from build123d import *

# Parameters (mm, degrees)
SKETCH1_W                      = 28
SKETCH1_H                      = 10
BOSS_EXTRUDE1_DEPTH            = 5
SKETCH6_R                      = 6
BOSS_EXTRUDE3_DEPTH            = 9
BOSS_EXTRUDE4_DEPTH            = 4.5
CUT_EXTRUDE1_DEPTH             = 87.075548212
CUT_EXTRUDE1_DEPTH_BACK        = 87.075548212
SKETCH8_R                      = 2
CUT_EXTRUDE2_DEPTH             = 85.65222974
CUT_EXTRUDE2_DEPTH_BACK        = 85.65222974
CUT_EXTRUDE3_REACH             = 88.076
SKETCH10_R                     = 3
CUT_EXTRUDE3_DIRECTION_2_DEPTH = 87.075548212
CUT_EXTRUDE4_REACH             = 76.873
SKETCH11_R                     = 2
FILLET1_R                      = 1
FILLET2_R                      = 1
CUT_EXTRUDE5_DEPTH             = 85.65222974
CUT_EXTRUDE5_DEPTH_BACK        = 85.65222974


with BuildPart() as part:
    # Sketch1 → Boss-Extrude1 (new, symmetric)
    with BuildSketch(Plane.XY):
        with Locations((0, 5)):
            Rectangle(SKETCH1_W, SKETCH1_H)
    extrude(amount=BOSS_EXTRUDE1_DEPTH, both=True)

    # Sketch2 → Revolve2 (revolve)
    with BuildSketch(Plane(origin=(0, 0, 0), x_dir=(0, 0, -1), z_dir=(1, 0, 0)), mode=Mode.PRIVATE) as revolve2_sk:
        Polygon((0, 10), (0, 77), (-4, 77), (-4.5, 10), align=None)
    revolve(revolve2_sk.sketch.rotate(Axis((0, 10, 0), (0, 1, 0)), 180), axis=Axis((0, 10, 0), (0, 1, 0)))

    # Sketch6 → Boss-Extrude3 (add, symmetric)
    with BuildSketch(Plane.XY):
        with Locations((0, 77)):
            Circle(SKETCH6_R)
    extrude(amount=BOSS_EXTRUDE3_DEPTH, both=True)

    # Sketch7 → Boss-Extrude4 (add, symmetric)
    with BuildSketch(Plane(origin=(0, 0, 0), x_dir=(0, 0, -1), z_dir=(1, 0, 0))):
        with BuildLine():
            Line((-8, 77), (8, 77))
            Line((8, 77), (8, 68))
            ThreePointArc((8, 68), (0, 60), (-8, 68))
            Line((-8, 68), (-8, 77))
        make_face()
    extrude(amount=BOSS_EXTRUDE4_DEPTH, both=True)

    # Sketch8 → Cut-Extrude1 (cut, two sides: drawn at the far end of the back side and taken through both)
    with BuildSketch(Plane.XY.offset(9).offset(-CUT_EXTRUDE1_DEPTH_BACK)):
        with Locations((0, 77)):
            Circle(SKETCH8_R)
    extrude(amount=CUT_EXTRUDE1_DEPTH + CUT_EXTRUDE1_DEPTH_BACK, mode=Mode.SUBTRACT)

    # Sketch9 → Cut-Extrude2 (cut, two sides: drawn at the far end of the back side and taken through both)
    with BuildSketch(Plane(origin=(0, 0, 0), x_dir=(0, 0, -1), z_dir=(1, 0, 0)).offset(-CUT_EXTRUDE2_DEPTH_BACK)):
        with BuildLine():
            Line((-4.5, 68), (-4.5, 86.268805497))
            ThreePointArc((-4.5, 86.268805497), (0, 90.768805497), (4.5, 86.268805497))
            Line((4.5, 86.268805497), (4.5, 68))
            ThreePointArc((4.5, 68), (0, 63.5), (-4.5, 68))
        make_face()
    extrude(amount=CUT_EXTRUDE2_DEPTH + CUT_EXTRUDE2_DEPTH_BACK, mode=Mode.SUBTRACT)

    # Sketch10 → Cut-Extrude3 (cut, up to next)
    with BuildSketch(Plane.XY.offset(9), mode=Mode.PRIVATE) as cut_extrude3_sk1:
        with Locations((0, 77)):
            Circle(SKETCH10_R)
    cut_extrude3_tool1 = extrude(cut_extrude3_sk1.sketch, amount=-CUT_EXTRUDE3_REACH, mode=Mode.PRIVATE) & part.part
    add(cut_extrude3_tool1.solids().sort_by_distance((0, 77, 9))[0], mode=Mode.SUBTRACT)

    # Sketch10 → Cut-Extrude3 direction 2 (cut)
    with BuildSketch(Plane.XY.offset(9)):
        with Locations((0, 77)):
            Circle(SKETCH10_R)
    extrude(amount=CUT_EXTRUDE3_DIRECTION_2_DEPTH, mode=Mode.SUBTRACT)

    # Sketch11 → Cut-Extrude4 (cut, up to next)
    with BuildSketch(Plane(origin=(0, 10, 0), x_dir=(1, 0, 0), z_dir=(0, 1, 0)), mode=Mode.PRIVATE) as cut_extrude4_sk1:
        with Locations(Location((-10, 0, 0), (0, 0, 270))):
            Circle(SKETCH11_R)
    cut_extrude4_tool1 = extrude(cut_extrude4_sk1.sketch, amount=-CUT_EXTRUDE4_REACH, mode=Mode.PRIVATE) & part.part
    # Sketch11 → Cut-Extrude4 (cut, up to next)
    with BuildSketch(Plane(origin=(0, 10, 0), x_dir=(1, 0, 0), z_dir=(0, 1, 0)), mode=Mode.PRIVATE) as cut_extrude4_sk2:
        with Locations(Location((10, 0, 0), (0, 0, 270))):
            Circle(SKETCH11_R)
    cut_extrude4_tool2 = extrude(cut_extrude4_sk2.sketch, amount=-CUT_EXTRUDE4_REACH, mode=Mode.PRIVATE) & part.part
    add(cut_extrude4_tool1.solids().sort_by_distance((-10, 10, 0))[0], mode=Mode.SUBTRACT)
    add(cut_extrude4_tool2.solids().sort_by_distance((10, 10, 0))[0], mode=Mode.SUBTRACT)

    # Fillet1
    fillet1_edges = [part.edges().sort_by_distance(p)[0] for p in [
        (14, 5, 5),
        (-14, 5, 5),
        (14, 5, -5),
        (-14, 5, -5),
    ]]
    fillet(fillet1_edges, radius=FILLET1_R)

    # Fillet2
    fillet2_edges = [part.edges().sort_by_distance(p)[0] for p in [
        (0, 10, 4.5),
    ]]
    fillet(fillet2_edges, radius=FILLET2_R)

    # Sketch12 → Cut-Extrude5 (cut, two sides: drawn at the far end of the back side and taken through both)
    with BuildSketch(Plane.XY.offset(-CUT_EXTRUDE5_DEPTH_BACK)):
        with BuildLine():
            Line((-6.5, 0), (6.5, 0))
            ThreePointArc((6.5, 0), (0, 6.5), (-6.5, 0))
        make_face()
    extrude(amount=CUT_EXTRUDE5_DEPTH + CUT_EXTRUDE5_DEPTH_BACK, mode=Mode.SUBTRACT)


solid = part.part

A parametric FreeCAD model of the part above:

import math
import FreeCAD as App
import Part
import Sketcher
Q = App.Units.Quantity


def edges_at(feature, points):
    """Names of the edges that pass closest to the given points."""
    edges = feature.Shape.Edges
    near = lambda p: min(range(len(edges)), key=lambda i: edges[i].distToShape(Part.Vertex(*p))[0])
    return sorted({f"Edge{near(p) + 1}" for p in points})


def add_polygon(sketch, points):
    """Adds a closed chain of lines whose ends are joined by coincident constraints."""
    first, n = sketch.GeometryCount, len(points)
    for a, b in zip(points, points[1:] + points[:1]):
        sketch.addGeometry(Part.LineSegment(App.Vector(*a, 0), App.Vector(*b, 0)), False)
    for i in range(n):
        sketch.addConstraint(Sketcher.Constraint("Coincident", first + i, 2, first + (i + 1) % n, 1))

doc = App.newDocument("Part")
body = doc.addObject("PartDesign::Body", "Body")

sketch1 = body.newObject("Sketcher::SketchObject", "Sketch")
sketch1.AttachmentSupport = (doc.getObject("XY_Plane"), [""])
sketch1.MapMode = "FlatFace"
add_polygon(sketch1, [(-14, 10), (-14, 0), (14, 0), (14, 10)])
sketch1.addConstraint(Sketcher.Constraint("Vertical", 0))
sketch1.addConstraint(Sketcher.Constraint("Horizontal", 1))
sketch1.addConstraint(Sketcher.Constraint("Vertical", 2))
sketch1.addConstraint(Sketcher.Constraint("Horizontal", 3))
sketch1.addConstraint(Sketcher.Constraint("Symmetric", 0, 2, 1, 2, -1, 1))
sketch1.addConstraint(Sketcher.Constraint("DistanceX", 1, 1, 1, 2, Q("28 mm")))
sketch1.addConstraint(Sketcher.Constraint("DistanceY", 0, 2, 0, 1, Q("10 mm")))
pad1 = body.newObject("PartDesign::Pad", "Pad")
pad1.Profile = sketch1
pad1.Length = 10
pad1.Midplane = True

sketch2 = body.newObject("Sketcher::SketchObject", "Sketch001")
sketch2.AttachmentSupport = (doc.getObject("YZ_Plane"), [""])
sketch2.MapMode = "FlatFace"
add_polygon(sketch2, [(10, 0), (77, 0), (77, 4), (10, 4.5)])
sketch2.addConstraint(Sketcher.Constraint("Horizontal", 0))
sketch2.addConstraint(Sketcher.Constraint("Vertical", 1))
sketch2.addConstraint(Sketcher.Constraint("Vertical", 3))
sketch2.addConstraint(Sketcher.Constraint("PointOnObject", 0, 2, -1))
sketch2.addConstraint(Sketcher.Constraint("DistanceX", 0, 1, 0, 2, Q("67 mm")))
sketch2.addConstraint(Sketcher.Constraint("DistanceY", 1, 1, 1, 2, Q("4 mm")))
sketch2.addConstraint(Sketcher.Constraint("DistanceY", 3, 2, 3, 1, Q("4.5 mm")))
sketch2.addConstraint(Sketcher.Constraint("DistanceX", -1, 1, 0, 2, Q("77 mm")))
revolution = body.newObject("PartDesign::Revolution", "Revolution")
revolution.Profile = sketch2
revolution.ReferenceAxis = (sketch2, ["H_Axis"])
revolution.Angle = 360

sketch3 = body.newObject("Sketcher::SketchObject", "Sketch002")
sketch3.AttachmentSupport = (doc.getObject("XY_Plane"), [""])
sketch3.MapMode = "FlatFace"
sketch3.addGeometry(Part.Circle(App.Vector(0, 77, 0), App.Vector(0, 0, 1), 6), False)
sketch3.addConstraint(Sketcher.Constraint("PointOnObject", 0, 3, -2))
sketch3.addConstraint(Sketcher.Constraint("Diameter", 0, Q("12 mm")))
sketch3.addConstraint(Sketcher.Constraint("DistanceY", -1, 1, 0, 3, Q("77 mm")))
pad2 = body.newObject("PartDesign::Pad", "Pad001")
pad2.Profile = sketch3
pad2.Length = 18
pad2.Midplane = True

sketch4 = body.newObject("Sketcher::SketchObject", "Sketch003")
sketch4.AttachmentSupport = (doc.getObject("YZ_Plane"), [""])
sketch4.MapMode = "FlatFace"
sketch4.addGeometry(Part.LineSegment(App.Vector(77, -8, 0), App.Vector(77, 8, 0)), False)
sketch4.addGeometry(Part.LineSegment(App.Vector(77, 8, 0), App.Vector(68, 8, 0)), False)
sketch4.addGeometry(Part.ArcOfCircle(Part.Circle(App.Vector(68, 0, 0), App.Vector(0, 0, 1), 8), math.radians(90), math.radians(270)), False)
sketch4.addGeometry(Part.LineSegment(App.Vector(68, -8, 0), App.Vector(77, -8, 0)), False)
sketch4.addConstraint(Sketcher.Constraint("Coincident", 0, 2, 1, 1))
sketch4.addConstraint(Sketcher.Constraint("Tangent", 1, 2, 2, 1))
sketch4.addConstraint(Sketcher.Constraint("Tangent", 2, 2, 3, 1))
sketch4.addConstraint(Sketcher.Constraint("Coincident", 3, 2, 0, 1))
sketch4.addConstraint(Sketcher.Constraint("Vertical", 0))
sketch4.addConstraint(Sketcher.Constraint("Horizontal", 1))
sketch4.addConstraint(Sketcher.Constraint("Horizontal", 3))
sketch4.addConstraint(Sketcher.Constraint("PointOnObject", 2, 3, -1))
sketch4.addConstraint(Sketcher.Constraint("Radius", 2, Q("8 mm")))
sketch4.addConstraint(Sketcher.Constraint("DistanceX", 1, 2, 1, 1, Q("9 mm")))
sketch4.addConstraint(Sketcher.Constraint("DistanceX", -1, 1, 2, 3, Q("68 mm")))
pad3 = body.newObject("PartDesign::Pad", "Pad002")
pad3.Profile = sketch4
pad3.Length = 9
pad3.Midplane = True

sketch5 = body.newObject("Sketcher::SketchObject", "Sketch004")
sketch5.AttachmentSupport = (doc.getObject("XY_Plane"), [""])
sketch5.MapMode = "FlatFace"
sketch5.AttachmentOffset = App.Placement(App.Vector(0, 0, 9), App.Rotation())
sketch5.addGeometry(Part.Circle(App.Vector(0, 77, 0), App.Vector(0, 0, 1), 2), False)
sketch5.addConstraint(Sketcher.Constraint("PointOnObject", 0, 3, -2))
sketch5.addConstraint(Sketcher.Constraint("Diameter", 0, Q("4 mm")))
sketch5.addConstraint(Sketcher.Constraint("DistanceY", -1, 1, 0, 3, Q("77 mm")))
pocket1 = body.newObject("PartDesign::Pocket", "Pocket")
pocket1.Profile = sketch5
pocket1.Type = "ThroughAll"
pocket1.Midplane = True

sketch6 = body.newObject("Sketcher::SketchObject", "Sketch005")
sketch6.AttachmentSupport = (doc.getObject("YZ_Plane"), [""])
sketch6.MapMode = "FlatFace"
sketch6.addGeometry(Part.LineSegment(App.Vector(86.3, 4.5, 0), App.Vector(68, 4.5, 0)), False)
sketch6.addGeometry(Part.ArcOfCircle(Part.Circle(App.Vector(68, 0, 0), App.Vector(0, 0, 1), 4.5), math.radians(90), math.radians(270)), False)
sketch6.addGeometry(Part.LineSegment(App.Vector(68, -4.5, 0), App.Vector(86.3, -4.5, 0)), False)
sketch6.addGeometry(Part.ArcOfCircle(Part.Circle(App.Vector(86.3, 0, 0), App.Vector(0, 0, 1), 4.5), math.radians(-90), math.radians(90)), False)
sketch6.addConstraint(Sketcher.Constraint("Tangent", 0, 2, 1, 1))
sketch6.addConstraint(Sketcher.Constraint("Tangent", 1, 2, 2, 1))
sketch6.addConstraint(Sketcher.Constraint("Tangent", 2, 2, 3, 1))
sketch6.addConstraint(Sketcher.Constraint("Tangent", 3, 2, 0, 1))
sketch6.addConstraint(Sketcher.Constraint("Horizontal", 0))
sketch6.addConstraint(Sketcher.Constraint("Horizontal", 2))
sketch6.addConstraint(Sketcher.Constraint("PointOnObject", 1, 3, -1))
sketch6.addConstraint(Sketcher.Constraint("Radius", 1, Q("4.5 mm")))
sketch6.addConstraint(Sketcher.Constraint("DistanceX", -1, 1, 1, 3, Q("68 mm")))
sketch6.addConstraint(Sketcher.Constraint("DistanceX", 0, 2, 0, 1, Q("18.268805 mm")))
pocket2 = body.newObject("PartDesign::Pocket", "Pocket001")
pocket2.Profile = sketch6
pocket2.Type = "ThroughAll"
pocket2.Midplane = True

sketch7 = body.newObject("Sketcher::SketchObject", "Sketch006")
sketch7.AttachmentSupport = (doc.getObject("XY_Plane"), [""])
sketch7.MapMode = "FlatFace"
sketch7.AttachmentOffset = App.Placement(App.Vector(0, 0, 9), App.Rotation())
sketch7.addGeometry(Part.Circle(App.Vector(0, 77, 0), App.Vector(0, 0, 1), 3), False)
sketch7.addConstraint(Sketcher.Constraint("PointOnObject", 0, 3, -2))
sketch7.addConstraint(Sketcher.Constraint("Diameter", 0, Q("6 mm")))
sketch7.addConstraint(Sketcher.Constraint("DistanceY", -1, 1, 0, 3, Q("77 mm")))
pocket3 = body.newObject("PartDesign::Pocket", "Pocket002")
pocket3.Profile = sketch7
pocket3.Length = 4.5

sketch8 = body.newObject("Sketcher::SketchObject", "Sketch007")
sketch8.AttachmentSupport = (doc.getObject("XY_Plane"), [""])
sketch8.MapMode = "FlatFace"
sketch8.AttachmentOffset = App.Placement(App.Vector(0, 0, 9), App.Rotation())
sketch8.addGeometry(Part.Circle(App.Vector(0, 77, 0), App.Vector(0, 0, 1), 3), False)
sketch8.addConstraint(Sketcher.Constraint("PointOnObject", 0, 3, -2))
sketch8.addConstraint(Sketcher.Constraint("Diameter", 0, Q("6 mm")))
sketch8.addConstraint(Sketcher.Constraint("DistanceY", -1, 1, 0, 3, Q("77 mm")))
pocket4 = body.newObject("PartDesign::Pocket", "Pocket003")
pocket4.Profile = sketch8
pocket4.Length = 87.075548
pocket4.Reversed = True

sketch9 = body.newObject("Sketcher::SketchObject", "Sketch008")
sketch9.AttachmentSupport = (doc.getObject("XZ_Plane"), [""])
sketch9.MapMode = "FlatFace"
sketch9.AttachmentOffset = App.Placement(App.Vector(0, 0, -10), App.Rotation())
sketch9.addGeometry(Part.Circle(App.Vector(-10, 0, 0), App.Vector(0, 0, 1), 2), False)
sketch9.addConstraint(Sketcher.Constraint("PointOnObject", 0, 3, -1))
sketch9.addConstraint(Sketcher.Constraint("Diameter", 0, Q("4 mm")))
sketch9.addConstraint(Sketcher.Constraint("DistanceX", 0, 3, -1, 1, Q("10 mm")))
pocket5 = body.newObject("PartDesign::Pocket", "Pocket004")
pocket5.Profile = sketch9
pocket5.Type = "UpToFirst"
pocket5.Reversed = True

sketch10 = body.newObject("Sketcher::SketchObject", "Sketch009")
sketch10.AttachmentSupport = (doc.getObject("XZ_Plane"), [""])
sketch10.MapMode = "FlatFace"
sketch10.AttachmentOffset = App.Placement(App.Vector(0, 0, -10), App.Rotation())
sketch10.addGeometry(Part.Circle(App.Vector(10, 0, 0), App.Vector(0, 0, 1), 2), False)
sketch10.addConstraint(Sketcher.Constraint("PointOnObject", 0, 3, -1))
sketch10.addConstraint(Sketcher.Constraint("Diameter", 0, Q("4 mm")))
sketch10.addConstraint(Sketcher.Constraint("DistanceX", -1, 1, 0, 3, Q("10 mm")))
pocket6 = body.newObject("PartDesign::Pocket", "Pocket005")
pocket6.Profile = sketch10
pocket6.Type = "UpToFirst"
pocket6.Reversed = True
doc.recompute()

fillet = body.newObject("PartDesign::Fillet", "Fillet")
fillet.Base = (pocket6, edges_at(pocket6, [
    (14, 5, 5),
    (-14, 5, 5),
    (14, 5, -5),
    (-14, 5, -5),
]))
fillet.Radius = 1
doc.recompute()

fillet2 = body.newObject("PartDesign::Fillet", "Fillet001")
fillet2.Base = (fillet, edges_at(fillet, [(0, 10, 4.5)]))
fillet2.Radius = 1

sketch11 = body.newObject("Sketcher::SketchObject", "Sketch010")
sketch11.AttachmentSupport = (doc.getObject("XY_Plane"), [""])
sketch11.MapMode = "FlatFace"
sketch11.addGeometry(Part.LineSegment(App.Vector(-6, 0, 0), App.Vector(6, 0, 0)), False)
sketch11.addGeometry(Part.ArcOfCircle(Part.Circle(App.Vector(0, 0, 0), App.Vector(0, 0, 1), 6), math.radians(0), math.radians(180)), False)
sketch11.addConstraint(Sketcher.Constraint("Coincident", 0, 1, 1, 2))
sketch11.addConstraint(Sketcher.Constraint("Coincident", 1, 1, 0, 2))
sketch11.addConstraint(Sketcher.Constraint("Horizontal", 0))
sketch11.addConstraint(Sketcher.Constraint("Coincident", 1, 3, -1, 1))
sketch11.addConstraint(Sketcher.Constraint("PointOnObject", 0, 1, -1))
sketch11.addConstraint(Sketcher.Constraint("Radius", 1, Q("6.5 mm")))
pocket7 = body.newObject("PartDesign::Pocket", "Pocket006")
pocket7.Profile = sketch11
pocket7.Type = "ThroughAll"
pocket7.Midplane = True

doc.recompute()
